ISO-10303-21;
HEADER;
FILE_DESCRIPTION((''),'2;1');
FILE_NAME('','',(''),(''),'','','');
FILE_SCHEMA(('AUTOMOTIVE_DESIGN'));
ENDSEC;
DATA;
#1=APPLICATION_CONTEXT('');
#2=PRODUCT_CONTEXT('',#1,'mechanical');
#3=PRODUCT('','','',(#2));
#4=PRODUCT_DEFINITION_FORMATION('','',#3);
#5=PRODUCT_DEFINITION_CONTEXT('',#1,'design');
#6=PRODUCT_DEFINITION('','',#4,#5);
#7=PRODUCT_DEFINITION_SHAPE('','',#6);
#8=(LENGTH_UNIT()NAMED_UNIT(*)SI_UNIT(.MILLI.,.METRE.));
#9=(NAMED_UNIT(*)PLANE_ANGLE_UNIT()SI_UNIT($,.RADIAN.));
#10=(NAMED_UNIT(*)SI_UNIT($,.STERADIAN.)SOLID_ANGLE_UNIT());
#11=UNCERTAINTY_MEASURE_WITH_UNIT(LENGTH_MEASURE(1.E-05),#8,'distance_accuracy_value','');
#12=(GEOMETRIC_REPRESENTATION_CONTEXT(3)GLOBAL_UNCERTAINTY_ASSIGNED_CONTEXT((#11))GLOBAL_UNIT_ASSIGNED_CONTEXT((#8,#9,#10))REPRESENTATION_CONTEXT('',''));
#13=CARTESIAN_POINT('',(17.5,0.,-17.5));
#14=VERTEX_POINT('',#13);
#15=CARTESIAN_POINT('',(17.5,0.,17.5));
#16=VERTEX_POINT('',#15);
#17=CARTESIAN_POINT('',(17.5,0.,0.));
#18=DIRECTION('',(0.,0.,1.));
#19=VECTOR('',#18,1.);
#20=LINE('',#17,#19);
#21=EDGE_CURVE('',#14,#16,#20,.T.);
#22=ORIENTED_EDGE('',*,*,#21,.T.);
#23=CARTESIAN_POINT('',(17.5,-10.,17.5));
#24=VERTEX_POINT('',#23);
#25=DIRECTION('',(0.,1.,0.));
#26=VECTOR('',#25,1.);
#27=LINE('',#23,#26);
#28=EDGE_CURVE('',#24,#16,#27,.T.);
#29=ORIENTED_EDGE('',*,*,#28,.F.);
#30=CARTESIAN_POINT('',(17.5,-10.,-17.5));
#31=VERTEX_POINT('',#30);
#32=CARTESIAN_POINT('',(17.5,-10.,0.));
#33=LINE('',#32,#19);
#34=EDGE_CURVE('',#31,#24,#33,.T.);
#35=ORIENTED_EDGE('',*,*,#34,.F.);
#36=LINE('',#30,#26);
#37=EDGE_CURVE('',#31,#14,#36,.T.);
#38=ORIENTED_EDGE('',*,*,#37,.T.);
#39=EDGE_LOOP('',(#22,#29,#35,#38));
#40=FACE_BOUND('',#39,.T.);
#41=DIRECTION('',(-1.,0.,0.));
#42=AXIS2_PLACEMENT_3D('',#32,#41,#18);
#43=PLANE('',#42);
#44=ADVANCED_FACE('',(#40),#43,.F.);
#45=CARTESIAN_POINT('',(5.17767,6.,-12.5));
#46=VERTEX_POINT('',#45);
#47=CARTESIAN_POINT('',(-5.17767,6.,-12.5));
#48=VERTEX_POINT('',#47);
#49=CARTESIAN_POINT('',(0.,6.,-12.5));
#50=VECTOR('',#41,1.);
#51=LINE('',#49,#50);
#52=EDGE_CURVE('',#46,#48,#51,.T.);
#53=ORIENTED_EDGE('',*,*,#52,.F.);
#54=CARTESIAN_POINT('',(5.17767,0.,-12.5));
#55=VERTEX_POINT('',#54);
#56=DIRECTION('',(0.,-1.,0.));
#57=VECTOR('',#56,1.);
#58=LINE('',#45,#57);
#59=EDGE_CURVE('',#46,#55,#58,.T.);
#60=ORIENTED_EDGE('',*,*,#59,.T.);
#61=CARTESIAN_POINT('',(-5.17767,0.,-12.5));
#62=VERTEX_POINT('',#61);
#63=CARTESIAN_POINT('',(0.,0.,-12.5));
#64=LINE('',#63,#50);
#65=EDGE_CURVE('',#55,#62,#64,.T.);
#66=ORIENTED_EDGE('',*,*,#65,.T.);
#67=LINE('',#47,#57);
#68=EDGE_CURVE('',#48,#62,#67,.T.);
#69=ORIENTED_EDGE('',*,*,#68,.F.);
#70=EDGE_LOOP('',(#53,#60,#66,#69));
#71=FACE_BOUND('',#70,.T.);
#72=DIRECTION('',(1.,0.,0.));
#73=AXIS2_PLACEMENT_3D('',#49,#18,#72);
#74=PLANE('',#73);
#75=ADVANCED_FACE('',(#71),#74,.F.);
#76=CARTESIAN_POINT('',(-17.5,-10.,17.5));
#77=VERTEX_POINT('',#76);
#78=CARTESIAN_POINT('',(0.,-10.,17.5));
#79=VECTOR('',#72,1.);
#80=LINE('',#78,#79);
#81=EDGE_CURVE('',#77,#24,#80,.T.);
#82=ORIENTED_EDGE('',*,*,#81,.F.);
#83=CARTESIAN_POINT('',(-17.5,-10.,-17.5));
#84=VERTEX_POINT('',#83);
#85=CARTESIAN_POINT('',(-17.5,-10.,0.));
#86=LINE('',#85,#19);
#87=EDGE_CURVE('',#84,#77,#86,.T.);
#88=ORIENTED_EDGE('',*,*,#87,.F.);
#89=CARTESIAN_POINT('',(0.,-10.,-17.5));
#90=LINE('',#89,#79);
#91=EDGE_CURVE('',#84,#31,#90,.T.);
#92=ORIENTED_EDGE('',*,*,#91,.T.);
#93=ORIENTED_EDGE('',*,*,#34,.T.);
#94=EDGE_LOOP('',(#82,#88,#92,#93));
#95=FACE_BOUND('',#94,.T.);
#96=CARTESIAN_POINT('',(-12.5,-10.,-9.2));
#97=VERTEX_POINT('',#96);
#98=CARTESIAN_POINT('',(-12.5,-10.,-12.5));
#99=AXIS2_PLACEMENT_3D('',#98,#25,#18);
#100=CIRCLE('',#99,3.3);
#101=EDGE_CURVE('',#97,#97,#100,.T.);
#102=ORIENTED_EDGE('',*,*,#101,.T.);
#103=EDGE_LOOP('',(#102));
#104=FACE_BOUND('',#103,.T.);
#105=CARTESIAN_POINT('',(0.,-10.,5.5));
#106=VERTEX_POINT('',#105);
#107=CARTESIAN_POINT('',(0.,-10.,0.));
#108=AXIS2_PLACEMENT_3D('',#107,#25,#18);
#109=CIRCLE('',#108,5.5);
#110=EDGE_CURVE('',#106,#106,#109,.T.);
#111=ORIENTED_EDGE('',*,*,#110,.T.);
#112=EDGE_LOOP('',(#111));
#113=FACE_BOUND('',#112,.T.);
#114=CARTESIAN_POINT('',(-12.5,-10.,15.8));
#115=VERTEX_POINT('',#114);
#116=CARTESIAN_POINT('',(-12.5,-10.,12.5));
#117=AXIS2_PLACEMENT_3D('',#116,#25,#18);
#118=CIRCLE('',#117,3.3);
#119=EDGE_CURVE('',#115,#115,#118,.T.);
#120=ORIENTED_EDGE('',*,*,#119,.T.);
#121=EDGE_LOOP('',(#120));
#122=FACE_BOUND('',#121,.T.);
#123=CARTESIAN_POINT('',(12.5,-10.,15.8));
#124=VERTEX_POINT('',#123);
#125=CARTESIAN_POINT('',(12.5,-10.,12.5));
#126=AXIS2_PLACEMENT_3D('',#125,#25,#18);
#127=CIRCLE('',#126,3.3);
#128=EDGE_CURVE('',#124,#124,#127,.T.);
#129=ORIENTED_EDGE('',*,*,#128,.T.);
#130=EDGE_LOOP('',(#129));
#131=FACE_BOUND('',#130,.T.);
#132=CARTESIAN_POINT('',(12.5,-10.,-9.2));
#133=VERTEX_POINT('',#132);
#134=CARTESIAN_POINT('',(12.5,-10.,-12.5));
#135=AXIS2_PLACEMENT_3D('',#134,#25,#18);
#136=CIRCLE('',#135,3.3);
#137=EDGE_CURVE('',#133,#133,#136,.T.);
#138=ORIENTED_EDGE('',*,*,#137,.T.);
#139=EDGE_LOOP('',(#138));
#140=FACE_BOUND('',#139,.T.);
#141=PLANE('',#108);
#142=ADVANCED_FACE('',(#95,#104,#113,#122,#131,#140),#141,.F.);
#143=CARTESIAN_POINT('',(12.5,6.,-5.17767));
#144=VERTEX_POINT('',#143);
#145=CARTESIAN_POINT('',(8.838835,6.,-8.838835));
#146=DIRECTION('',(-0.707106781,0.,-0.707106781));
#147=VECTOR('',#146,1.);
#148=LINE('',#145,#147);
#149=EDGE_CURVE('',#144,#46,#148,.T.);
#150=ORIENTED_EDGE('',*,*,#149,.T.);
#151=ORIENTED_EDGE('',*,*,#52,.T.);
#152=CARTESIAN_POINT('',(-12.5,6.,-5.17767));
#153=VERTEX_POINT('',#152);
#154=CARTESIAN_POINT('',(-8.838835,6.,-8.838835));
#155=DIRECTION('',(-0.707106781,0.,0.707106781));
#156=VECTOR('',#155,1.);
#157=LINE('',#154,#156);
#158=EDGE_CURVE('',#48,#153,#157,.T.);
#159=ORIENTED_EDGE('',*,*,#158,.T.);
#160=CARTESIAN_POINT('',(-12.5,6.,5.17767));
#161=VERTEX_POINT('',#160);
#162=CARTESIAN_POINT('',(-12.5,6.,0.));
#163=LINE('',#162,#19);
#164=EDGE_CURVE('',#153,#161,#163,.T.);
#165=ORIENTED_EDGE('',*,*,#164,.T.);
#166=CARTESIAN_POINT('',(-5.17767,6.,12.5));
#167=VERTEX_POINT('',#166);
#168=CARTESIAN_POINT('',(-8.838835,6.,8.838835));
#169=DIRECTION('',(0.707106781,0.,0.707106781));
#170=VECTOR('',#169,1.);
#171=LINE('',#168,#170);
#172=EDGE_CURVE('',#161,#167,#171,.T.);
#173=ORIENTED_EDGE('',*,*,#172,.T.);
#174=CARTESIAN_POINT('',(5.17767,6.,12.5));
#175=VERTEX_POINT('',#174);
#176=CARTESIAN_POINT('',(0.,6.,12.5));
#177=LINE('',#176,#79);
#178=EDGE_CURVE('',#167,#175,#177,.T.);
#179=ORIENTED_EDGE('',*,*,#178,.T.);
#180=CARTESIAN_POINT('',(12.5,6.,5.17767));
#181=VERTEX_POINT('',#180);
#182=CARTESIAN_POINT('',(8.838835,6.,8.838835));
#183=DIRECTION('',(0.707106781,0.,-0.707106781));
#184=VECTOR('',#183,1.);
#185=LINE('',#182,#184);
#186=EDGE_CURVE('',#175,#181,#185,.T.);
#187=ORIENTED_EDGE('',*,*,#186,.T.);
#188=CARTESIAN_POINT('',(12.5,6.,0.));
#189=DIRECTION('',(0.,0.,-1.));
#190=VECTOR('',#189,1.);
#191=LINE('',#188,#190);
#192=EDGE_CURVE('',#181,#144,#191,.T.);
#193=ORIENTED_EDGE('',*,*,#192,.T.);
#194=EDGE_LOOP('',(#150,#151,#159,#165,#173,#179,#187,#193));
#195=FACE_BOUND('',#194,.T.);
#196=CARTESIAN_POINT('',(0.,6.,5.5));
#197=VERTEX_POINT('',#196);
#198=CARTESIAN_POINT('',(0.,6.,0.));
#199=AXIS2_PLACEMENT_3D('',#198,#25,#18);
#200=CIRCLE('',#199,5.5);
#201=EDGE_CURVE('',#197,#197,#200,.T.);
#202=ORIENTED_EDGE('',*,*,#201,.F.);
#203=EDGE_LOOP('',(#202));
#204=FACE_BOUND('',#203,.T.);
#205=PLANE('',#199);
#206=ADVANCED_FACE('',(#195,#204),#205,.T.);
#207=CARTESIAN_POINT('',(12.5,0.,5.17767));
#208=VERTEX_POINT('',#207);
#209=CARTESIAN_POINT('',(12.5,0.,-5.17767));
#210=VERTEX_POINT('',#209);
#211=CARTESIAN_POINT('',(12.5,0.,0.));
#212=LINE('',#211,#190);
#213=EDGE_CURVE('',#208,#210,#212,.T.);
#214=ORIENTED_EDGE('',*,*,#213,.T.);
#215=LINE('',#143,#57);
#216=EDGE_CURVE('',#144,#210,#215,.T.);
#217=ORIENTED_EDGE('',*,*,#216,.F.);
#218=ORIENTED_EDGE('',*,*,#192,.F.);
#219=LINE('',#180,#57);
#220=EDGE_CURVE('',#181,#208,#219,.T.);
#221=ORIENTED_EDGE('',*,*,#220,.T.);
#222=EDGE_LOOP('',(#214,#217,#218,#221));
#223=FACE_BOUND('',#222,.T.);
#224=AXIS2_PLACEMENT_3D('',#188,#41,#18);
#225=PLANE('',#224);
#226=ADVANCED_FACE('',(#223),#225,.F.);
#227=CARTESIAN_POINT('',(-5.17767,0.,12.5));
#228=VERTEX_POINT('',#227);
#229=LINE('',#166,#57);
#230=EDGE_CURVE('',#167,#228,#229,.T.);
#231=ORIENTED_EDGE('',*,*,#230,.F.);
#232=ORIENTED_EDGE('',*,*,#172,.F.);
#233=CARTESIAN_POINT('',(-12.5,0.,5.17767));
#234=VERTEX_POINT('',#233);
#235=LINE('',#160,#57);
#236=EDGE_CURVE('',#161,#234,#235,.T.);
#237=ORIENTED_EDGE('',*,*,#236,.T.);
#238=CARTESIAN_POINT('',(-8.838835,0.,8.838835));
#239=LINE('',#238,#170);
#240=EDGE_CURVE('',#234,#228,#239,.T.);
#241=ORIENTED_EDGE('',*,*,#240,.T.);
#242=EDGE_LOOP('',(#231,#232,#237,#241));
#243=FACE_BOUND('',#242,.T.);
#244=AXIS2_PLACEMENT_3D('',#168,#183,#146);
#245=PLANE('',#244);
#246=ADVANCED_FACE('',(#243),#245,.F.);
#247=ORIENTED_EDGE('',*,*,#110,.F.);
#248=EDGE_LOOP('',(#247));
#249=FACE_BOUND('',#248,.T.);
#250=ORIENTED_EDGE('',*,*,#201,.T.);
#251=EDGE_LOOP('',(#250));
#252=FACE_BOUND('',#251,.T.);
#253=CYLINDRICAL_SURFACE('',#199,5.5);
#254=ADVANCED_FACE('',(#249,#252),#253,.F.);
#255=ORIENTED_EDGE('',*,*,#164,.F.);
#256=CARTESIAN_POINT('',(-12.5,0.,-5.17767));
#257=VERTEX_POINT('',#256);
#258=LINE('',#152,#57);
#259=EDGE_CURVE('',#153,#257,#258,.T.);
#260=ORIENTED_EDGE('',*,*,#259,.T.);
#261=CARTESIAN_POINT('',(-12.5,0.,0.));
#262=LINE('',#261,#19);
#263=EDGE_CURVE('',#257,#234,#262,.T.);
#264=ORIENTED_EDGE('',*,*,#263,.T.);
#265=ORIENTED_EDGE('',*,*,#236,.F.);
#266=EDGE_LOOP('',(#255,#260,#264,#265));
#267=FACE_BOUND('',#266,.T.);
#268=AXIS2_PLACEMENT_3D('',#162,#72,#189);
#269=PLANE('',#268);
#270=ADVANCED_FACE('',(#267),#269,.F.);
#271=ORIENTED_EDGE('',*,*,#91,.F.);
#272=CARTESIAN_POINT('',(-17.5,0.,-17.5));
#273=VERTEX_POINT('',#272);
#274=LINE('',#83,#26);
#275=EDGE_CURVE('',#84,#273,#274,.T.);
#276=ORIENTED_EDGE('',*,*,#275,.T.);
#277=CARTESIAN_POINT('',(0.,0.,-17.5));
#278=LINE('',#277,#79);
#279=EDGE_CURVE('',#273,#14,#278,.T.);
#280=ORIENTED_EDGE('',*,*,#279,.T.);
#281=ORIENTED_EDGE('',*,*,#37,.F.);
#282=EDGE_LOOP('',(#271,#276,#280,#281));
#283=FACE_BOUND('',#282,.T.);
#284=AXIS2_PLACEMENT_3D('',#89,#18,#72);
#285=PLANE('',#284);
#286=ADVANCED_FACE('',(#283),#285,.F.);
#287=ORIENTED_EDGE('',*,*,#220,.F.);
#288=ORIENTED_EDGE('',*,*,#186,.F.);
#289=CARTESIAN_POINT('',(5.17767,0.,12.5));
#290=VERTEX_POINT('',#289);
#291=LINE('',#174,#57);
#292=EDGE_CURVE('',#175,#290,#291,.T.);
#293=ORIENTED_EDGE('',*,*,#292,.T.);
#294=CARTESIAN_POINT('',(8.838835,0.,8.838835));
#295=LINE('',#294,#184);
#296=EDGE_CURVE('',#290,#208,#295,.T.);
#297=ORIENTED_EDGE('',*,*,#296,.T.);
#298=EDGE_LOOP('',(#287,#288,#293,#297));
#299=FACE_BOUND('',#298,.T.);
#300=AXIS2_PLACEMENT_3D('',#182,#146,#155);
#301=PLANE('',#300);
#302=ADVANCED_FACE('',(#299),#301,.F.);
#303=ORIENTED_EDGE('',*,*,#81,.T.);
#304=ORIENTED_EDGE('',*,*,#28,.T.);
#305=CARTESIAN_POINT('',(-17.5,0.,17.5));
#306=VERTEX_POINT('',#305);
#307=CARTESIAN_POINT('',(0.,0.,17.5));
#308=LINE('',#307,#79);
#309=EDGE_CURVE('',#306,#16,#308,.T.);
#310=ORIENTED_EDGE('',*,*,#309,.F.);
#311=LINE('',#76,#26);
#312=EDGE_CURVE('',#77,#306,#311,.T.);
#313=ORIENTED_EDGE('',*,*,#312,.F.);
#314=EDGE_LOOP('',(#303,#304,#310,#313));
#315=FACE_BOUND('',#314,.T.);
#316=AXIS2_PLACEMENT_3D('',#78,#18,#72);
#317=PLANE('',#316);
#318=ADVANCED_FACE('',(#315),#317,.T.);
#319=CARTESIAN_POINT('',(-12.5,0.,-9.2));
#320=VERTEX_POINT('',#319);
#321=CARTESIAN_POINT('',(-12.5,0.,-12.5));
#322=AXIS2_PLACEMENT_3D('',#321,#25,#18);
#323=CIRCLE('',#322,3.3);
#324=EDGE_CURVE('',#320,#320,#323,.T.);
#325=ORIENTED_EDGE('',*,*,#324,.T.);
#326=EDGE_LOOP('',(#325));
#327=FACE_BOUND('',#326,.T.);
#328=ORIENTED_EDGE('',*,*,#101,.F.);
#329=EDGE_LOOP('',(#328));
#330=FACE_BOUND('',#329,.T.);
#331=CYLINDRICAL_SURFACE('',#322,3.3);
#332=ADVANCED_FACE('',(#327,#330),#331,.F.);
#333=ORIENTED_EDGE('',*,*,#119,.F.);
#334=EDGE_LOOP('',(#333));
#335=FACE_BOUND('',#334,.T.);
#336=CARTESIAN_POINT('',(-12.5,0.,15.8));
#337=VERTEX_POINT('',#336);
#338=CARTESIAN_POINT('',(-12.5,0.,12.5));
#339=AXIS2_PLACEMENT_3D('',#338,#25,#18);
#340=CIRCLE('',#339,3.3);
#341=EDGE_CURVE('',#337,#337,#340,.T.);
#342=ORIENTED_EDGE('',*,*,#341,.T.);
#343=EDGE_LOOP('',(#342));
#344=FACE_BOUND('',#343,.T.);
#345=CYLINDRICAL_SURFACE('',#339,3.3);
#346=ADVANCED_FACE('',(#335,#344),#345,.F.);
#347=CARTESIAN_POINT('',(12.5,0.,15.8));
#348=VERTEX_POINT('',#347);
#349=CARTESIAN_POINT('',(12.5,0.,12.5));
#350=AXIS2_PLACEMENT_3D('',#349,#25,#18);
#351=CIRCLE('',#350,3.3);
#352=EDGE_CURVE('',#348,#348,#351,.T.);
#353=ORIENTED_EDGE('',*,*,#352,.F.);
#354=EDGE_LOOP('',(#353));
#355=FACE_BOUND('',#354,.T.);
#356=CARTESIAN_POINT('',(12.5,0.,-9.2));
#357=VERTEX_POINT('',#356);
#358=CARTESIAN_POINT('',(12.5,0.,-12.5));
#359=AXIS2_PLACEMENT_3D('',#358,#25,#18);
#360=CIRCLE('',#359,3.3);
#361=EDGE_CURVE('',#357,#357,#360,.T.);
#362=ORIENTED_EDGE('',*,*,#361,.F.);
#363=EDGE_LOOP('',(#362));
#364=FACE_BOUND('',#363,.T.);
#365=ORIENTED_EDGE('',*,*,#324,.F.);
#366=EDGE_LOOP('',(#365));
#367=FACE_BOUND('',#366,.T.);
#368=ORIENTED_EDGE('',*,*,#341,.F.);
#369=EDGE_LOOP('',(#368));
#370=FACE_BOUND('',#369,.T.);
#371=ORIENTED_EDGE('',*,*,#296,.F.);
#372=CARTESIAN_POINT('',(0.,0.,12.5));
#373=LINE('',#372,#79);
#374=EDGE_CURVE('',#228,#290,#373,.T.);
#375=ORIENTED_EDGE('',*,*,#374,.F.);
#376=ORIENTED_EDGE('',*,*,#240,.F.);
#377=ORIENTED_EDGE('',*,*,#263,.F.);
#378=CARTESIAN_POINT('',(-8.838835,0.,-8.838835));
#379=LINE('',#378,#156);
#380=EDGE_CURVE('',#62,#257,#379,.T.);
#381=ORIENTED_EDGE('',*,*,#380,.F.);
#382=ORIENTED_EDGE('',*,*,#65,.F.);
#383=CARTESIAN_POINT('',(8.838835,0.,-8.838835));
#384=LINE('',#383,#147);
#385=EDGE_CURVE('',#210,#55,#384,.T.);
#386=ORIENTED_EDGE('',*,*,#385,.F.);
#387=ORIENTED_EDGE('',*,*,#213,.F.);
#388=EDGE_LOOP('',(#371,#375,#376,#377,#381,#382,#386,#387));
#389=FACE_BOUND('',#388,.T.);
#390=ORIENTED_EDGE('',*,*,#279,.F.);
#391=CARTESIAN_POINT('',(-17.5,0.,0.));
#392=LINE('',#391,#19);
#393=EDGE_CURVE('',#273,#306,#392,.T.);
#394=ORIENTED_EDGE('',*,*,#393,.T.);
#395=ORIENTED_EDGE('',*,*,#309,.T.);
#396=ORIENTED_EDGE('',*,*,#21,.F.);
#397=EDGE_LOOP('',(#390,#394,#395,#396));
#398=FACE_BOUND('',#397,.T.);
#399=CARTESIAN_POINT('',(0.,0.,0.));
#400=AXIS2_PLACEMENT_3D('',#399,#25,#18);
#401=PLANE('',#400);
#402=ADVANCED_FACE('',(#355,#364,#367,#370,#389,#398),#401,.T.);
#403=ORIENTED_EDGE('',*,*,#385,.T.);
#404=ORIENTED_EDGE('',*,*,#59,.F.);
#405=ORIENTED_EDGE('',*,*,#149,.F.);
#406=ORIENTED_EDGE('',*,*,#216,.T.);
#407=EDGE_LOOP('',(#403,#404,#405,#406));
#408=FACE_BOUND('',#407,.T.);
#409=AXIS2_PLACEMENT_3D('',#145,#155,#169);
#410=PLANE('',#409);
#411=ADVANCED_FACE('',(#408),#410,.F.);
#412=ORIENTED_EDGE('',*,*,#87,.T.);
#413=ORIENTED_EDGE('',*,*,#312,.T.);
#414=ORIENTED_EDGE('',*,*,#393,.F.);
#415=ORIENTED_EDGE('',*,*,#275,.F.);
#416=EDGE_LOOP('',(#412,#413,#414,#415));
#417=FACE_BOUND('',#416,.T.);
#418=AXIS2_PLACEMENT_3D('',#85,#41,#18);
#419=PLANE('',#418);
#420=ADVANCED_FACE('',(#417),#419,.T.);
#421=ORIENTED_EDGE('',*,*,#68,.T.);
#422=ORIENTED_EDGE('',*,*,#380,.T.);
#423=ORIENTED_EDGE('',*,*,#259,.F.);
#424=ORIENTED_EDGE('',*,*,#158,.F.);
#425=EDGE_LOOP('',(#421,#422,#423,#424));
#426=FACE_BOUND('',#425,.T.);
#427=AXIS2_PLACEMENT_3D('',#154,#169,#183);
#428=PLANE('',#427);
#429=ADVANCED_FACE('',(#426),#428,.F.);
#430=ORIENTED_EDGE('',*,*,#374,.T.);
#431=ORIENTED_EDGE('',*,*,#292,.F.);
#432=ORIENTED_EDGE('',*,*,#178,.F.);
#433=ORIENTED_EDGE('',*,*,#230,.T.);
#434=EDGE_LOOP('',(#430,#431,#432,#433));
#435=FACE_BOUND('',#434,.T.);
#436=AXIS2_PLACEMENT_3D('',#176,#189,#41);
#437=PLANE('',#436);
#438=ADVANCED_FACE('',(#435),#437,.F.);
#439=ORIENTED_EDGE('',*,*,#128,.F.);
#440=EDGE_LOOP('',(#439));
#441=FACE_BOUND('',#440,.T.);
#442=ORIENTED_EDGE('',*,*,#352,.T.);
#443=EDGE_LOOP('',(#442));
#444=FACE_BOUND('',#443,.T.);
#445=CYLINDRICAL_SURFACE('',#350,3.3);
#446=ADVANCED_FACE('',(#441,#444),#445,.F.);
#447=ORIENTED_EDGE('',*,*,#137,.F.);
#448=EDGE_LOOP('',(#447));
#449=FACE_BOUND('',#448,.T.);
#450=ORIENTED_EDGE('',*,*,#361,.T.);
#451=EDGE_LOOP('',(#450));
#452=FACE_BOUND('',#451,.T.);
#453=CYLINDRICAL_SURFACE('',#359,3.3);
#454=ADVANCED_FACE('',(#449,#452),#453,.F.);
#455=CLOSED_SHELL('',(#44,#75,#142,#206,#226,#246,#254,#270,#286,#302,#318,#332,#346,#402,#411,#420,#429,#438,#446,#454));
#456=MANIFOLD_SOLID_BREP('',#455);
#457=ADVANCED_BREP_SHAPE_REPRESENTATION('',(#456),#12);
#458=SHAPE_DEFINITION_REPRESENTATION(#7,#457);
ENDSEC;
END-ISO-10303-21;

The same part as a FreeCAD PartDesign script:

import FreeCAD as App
import Part
import Sketcher
Q = App.Units.Quantity


def add_polygon(sketch, points):
    """Adds a closed chain of lines whose ends are joined by coincident constraints."""
    first, n = sketch.GeometryCount, len(points)
    for a, b in zip(points, points[1:] + points[:1]):
        sketch.addGeometry(Part.LineSegment(App.Vector(*a, 0), App.Vector(*b, 0)), False)
    for i in range(n):
        sketch.addConstraint(Sketcher.Constraint("Coincident", first + i, 2, first + (i + 1) % n, 1))

doc = App.newDocument("Part")
body = doc.addObject("PartDesign::Body", "Body")

sketch1 = body.newObject("Sketcher::SketchObject", "Sketch")
sketch1.AttachmentSupport = (doc.getObject("XZ_Plane"), [""])
sketch1.MapMode = "FlatFace"
add_polygon(sketch1, [(-17.5, -17.5), (-17.5, 17.5), (17.5, 17.5), (17.5, -17.5)])
sketch1.addConstraint([
    Sketcher.Constraint("Vertical", 0),
    Sketcher.Constraint("Horizontal", 1),
    Sketcher.Constraint("Vertical", 2),
    Sketcher.Constraint("Horizontal", 3),
    Sketcher.Constraint("Symmetric", 0, 2, 2, 2, -1, 1),
    Sketcher.Constraint("Equal", 3, 0),
    Sketcher.Constraint("DistanceX", 1, 1, 1, 2, Q("35 mm")),
])
pad1 = body.newObject("PartDesign::Pad", "Pad")
pad1.Profile = sketch1
pad1.Length = 10

sketch2 = body.newObject("Sketcher::SketchObject", "Sketch001")
sketch2.AttachmentSupport = (doc.getObject("XZ_Plane"), [""])
sketch2.MapMode = "FlatFace"
add_polygon(sketch2, [(-12.5, 5.17767), (-5.17767, 12.5), (5.17767, 12.5), (12.5, 5.17767), (12.5, -5.17767), (5.17767, -12.5), (-5.17767, -12.5), (-12.5, -5.17767)])
sketch2.addConstraint([
    Sketcher.Constraint("Horizontal", 1),
    Sketcher.Constraint("Vertical", 3),
    Sketcher.Constraint("Horizontal", 5),
    Sketcher.Constraint("Vertical", 7),
    Sketcher.Constraint("Symmetric", 0, 2, 4, 2, -1, 1),
    Sketcher.Constraint("Symmetric", 2, 2, 6, 2, -1, 1),
    Sketcher.Constraint("Perpendicular", 0, 2),
    Sketcher.Constraint("Perpendicular", 2, 4),
    Sketcher.Constraint("Perpendicular", 4, 6),
    Sketcher.Constraint("Horizontal", 3, 2, 6, 2),
    Sketcher.Constraint("Vertical", 1, 2, 4, 2),
    Sketcher.Constraint("Equal", 5, 3),
    Sketcher.Constraint("DistanceY", 4, 2, 1, 2, Q("25 mm")),
    Sketcher.Constraint("DistanceX", 1, 1, 1, 2, Q("10.355339 mm")),
])
pad2 = body.newObject("PartDesign::Pad", "Pad001")
pad2.Profile = sketch2
pad2.Length = 6
pad2.Reversed = True

sketch3 = body.newObject("Sketcher::SketchObject", "Sketch002")
sketch3.AttachmentSupport = (doc.getObject("XZ_Plane"), [""])
sketch3.MapMode = "FlatFace"
sketch3.AttachmentOffset = App.Placement(App.Vector(0, 0, -6), App.Rotation())
sketch3.addGeometry(Part.Circle(App.Vector(0, 0, 0), App.Vector(0, 0, 1), 5.5), False)
sketch3.addConstraint([
    Sketcher.Constraint("Coincident", 0, 3, -1, 1),
    Sketcher.Constraint("Diameter", 0, Q("11 mm")),
])
doc.recompute()
hole = body.newObject("PartDesign::Hole", "Hole")
hole.Profile = sketch3
hole.ThreadType = "None"
hole.Diameter = 11
hole.DepthType = "ThroughAll"
hole.Reversed = True

sketch4 = body.newObject("Sketcher::SketchObject", "Sketch003")
sketch4.AttachmentSupport = (doc.getObject("XZ_Plane"), [""])
sketch4.MapMode = "FlatFace"
sketch4.addGeometry(Part.Circle(App.Vector(-12.5, -12.5, 0), App.Vector(0, 0, 1), 3.3), False)
sketch4.addConstraint([
    Sketcher.Constraint("Diameter", 0, Q("6.6 mm")),
    Sketcher.Constraint("DistanceX", 0, 3, -1, 1, Q("12.5 mm")),
    Sketcher.Constraint("DistanceY", 0, 3, -1, 1, Q("12.5 mm")),
])
doc.recompute()
hole2 = body.newObject("PartDesign::Hole", "Hole001")
hole2.Profile = sketch4
hole2.ThreadType = "None"
hole2.Diameter = 6.6
hole2.DepthType = "ThroughAll"
hole2.Reversed = True
doc.recompute()

mirrored = body.newObject("PartDesign::Mirrored", "Mirrored")
mirrored.Originals = [hole2]
mirrored.MirrorPlane = (doc.getObject("YZ_Plane"), [""])
body.Tip = mirrored
doc.recompute()

mirrored2 = body.newObject("PartDesign::Mirrored", "Mirrored001")
mirrored2.Originals = [hole2]
mirrored2.MirrorPlane = (doc.getObject("XY_Plane"), [""])
body.Tip = mirrored2

sketch5 = body.newObject("Sketcher::SketchObject", "Sketch004")
sketch5.AttachmentSupport = (doc.getObject("XZ_Plane"), [""])
sketch5.MapMode = "FlatFace"
sketch5.addGeometry(Part.Circle(App.Vector(12.5, 12.5, 0), App.Vector(0, 0, 1), 3.3), False)
sketch5.addConstraint([
    Sketcher.Constraint("Diameter", 0, Q("6.6 mm")),
    Sketcher.Constraint("DistanceX", -1, 1, 0, 3, Q("12.5 mm")),
    Sketcher.Constraint("DistanceY", -1, 1, 0, 3, Q("12.5 mm")),
])
doc.recompute()
hole3 = body.newObject("PartDesign::Hole", "Hole002")
hole3.Profile = sketch5
hole3.ThreadType = "None"
hole3.Diameter = 6.6
hole3.DepthType = "ThroughAll"
hole3.Reversed = True

doc.recompute()
